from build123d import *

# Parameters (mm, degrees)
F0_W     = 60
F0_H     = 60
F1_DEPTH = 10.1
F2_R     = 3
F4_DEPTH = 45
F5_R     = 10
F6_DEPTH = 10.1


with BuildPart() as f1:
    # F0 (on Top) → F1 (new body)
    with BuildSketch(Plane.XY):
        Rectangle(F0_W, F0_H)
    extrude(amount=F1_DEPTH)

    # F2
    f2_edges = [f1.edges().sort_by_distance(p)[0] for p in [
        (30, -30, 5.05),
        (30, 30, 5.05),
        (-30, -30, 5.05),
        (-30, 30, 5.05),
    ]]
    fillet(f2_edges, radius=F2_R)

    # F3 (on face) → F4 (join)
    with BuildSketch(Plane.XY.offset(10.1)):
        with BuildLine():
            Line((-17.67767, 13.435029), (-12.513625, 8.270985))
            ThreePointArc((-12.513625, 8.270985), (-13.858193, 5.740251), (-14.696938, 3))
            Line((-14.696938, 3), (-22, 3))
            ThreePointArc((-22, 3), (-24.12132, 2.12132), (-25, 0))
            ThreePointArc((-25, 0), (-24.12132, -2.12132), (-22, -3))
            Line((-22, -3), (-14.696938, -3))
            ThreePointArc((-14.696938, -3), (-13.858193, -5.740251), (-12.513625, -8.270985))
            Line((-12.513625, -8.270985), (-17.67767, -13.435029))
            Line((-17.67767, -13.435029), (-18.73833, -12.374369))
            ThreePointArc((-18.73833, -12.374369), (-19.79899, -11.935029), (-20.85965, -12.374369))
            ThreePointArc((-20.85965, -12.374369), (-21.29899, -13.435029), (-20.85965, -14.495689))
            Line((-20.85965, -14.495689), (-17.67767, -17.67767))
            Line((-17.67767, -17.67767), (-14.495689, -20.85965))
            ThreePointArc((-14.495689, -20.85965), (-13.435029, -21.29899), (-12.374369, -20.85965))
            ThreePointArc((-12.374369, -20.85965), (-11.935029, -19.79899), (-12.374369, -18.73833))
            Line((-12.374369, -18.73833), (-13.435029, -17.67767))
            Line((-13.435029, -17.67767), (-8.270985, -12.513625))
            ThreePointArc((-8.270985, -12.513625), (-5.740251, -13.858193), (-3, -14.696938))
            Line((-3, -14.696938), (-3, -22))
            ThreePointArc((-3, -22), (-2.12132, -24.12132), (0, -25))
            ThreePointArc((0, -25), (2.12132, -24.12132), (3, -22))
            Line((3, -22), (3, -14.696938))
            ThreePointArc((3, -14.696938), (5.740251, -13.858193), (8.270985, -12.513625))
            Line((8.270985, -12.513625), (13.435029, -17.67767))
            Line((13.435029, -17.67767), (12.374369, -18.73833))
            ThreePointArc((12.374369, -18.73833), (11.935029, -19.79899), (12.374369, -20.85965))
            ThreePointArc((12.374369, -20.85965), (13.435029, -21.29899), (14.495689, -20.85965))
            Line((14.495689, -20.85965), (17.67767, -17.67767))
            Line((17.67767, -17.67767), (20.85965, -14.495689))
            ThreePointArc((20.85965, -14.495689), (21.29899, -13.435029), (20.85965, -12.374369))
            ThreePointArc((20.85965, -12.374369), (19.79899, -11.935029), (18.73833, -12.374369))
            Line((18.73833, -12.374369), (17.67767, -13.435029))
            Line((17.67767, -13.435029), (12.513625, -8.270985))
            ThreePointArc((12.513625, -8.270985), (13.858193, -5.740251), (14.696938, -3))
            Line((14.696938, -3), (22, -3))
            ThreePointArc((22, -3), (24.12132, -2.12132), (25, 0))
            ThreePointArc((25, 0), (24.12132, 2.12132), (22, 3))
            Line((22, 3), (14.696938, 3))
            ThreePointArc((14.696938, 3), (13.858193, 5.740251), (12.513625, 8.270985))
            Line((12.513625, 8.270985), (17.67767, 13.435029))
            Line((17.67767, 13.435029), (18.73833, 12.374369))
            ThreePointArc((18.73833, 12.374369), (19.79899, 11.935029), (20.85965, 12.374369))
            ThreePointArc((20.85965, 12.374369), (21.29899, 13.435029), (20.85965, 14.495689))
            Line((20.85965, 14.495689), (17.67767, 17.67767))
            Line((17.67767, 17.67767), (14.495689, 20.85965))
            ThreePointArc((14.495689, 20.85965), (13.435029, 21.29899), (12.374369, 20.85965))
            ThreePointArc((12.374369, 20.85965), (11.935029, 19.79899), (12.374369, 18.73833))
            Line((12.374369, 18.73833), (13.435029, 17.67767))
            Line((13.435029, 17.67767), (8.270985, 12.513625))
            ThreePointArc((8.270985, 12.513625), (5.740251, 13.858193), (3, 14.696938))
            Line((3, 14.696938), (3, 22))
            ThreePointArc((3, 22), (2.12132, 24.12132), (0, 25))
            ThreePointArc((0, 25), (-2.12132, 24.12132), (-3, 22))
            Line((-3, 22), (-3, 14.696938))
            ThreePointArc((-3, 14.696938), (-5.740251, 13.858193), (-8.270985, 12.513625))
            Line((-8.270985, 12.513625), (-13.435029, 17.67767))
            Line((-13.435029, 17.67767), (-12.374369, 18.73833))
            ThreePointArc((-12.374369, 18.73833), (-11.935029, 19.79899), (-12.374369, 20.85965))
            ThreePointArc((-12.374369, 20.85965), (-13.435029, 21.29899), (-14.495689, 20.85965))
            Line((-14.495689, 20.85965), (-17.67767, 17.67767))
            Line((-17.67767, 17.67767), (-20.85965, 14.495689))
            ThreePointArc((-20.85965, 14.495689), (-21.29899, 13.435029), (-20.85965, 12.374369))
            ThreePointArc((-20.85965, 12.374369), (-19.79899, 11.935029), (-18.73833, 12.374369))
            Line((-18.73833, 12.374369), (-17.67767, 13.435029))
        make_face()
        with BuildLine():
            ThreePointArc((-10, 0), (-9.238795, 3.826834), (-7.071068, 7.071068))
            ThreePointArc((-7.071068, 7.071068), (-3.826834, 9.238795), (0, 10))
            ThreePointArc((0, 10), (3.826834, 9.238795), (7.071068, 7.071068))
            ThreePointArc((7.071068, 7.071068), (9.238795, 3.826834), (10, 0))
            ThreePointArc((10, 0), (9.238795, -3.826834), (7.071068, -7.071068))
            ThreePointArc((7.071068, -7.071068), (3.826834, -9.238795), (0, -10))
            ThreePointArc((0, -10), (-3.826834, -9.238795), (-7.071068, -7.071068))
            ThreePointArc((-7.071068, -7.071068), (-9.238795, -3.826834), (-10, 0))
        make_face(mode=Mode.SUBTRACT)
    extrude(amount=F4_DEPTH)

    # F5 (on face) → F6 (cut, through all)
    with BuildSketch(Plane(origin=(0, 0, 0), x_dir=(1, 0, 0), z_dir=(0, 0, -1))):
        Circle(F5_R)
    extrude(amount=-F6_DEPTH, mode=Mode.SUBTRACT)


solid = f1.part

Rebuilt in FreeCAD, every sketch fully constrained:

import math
import FreeCAD as App
import Part
import Sketcher


def edges_at(feature, points):
    """Names of the edges that pass closest to the given points."""
    edges = feature.Shape.Edges
    near = lambda p: min(range(len(edges)), key=lambda i: edges[i].distToShape(Part.Vertex(*p))[0])
    return sorted({f"Edge{near(p) + 1}" for p in points})

doc = App.newDocument("Part")
body = doc.addObject("PartDesign::Body", "Body")

# Sketch on XY plane
sketch1 = body.newObject("Sketcher::SketchObject", "Sketch")
sketch1.AttachmentSupport = (doc.getObject("XY_Plane"), [""])
sketch1.MapMode = "FlatFace"
sketch1.addGeometry(Part.LineSegment(App.Vector(-30, 30, 0), App.Vector(-30, -30, 0)), False)
sketch1.addGeometry(Part.LineSegment(App.Vector(-30, -30, 0), App.Vector(30, -30, 0)), False)
sketch1.addGeometry(Part.LineSegment(App.Vector(30, -30, 0), App.Vector(30, 30, 0)), False)
sketch1.addGeometry(Part.LineSegment(App.Vector(30, 30, 0), App.Vector(-30, 30, 0)), False)
sketch1.addConstraint(Sketcher.Constraint("Coincident", 0, 2, 1, 1))
sketch1.addConstraint(Sketcher.Constraint("Coincident", 1, 2, 2, 1))
sketch1.addConstraint(Sketcher.Constraint("Coincident", 2, 2, 3, 1))
sketch1.addConstraint(Sketcher.Constraint("Coincident", 3, 2, 0, 1))
sketch1.addConstraint(Sketcher.Constraint("Vertical", 0))
sketch1.addConstraint(Sketcher.Constraint("Horizontal", 1))
sketch1.addConstraint(Sketcher.Constraint("Vertical", 2))
sketch1.addConstraint(Sketcher.Constraint("Horizontal", 3))
sketch1.addConstraint(Sketcher.Constraint("Symmetric", 0, 2, 2, 2, -1, 1))
sketch1.addConstraint(Sketcher.Constraint("Equal", 3, 0))
sketch1.addConstraint(Sketcher.Constraint("DistanceX", 1, 1, 1, 2, 60.0))
pad1 = body.newObject("PartDesign::Pad", "Pad")
pad1.Profile = sketch1
pad1.Length = 10.1
doc.recompute()

fillet = body.newObject("PartDesign::Fillet", "Fillet")
fillet.Base = (pad1, edges_at(pad1, [
    (30, -30, 5.05),
    (30, 30, 5.05),
    (-30, -30, 5.05),
    (-30, 30, 5.05),
]))
fillet.Radius = 3

# Sketch on XY plane
sketch2 = body.newObject("Sketcher::SketchObject", "Sketch001")
sketch2.AttachmentSupport = (doc.getObject("XY_Plane"), [""])
sketch2.MapMode = "FlatFace"
sketch2.AttachmentOffset = App.Placement(App.Vector(0, 0, 10.1), App.Rotation())
sketch2.addGeometry(Part.LineSegment(App.Vector(-17.7, 13.4, 0), App.Vector(-12.5, 8.3, 0)), False)
sketch2.addGeometry(Part.ArcOfCircle(Part.Circle(App.Vector(0, 0, 0), App.Vector(0, 0, 1), 15), math.radians(147), math.radians(168)), False)
sketch2.addGeometry(Part.LineSegment(App.Vector(-14.7, 3, 0), App.Vector(-22, 3, 0)), False)
sketch2.addGeometry(Part.ArcOfCircle(Part.Circle(App.Vector(-22, 0, 0), App.Vector(0, 0, 1), 3), math.radians(90), math.radians(180)), False)
sketch2.addGeometry(Part.ArcOfCircle(Part.Circle(App.Vector(-22, 0, 0), App.Vector(0, 0, 1), 3), math.radians(-180), math.radians(-90)), False)
sketch2.addGeometry(Part.LineSegment(App.Vector(-22, -3, 0), App.Vector(-14.7, -3, 0)), False)
sketch2.addGeometry(Part.ArcOfCircle(Part.Circle(App.Vector(0, 0, 0), App.Vector(0, 0, 1), 15), math.radians(-168), math.radians(-147)), False)
sketch2.addGeometry(Part.LineSegment(App.Vector(-12.5, -8.3, 0), App.Vector(-17.7, -13.4, 0)), False)
sketch2.addGeometry(Part.LineSegment(App.Vector(-17.7, -13.4, 0), App.Vector(-18.7, -12.4, 0)), False)
sketch2.addGeometry(Part.ArcOfCircle(Part.Circle(App.Vector(-19.8, -13.4, 0), App.Vector(0, 0, 1), 1.5), math.radians(45), math.radians(135)), False)
sketch2.addGeometry(Part.ArcOfCircle(Part.Circle(App.Vector(-19.8, -13.4, 0), App.Vector(0, 0, 1), 1.5), math.radians(135), math.radians(225)), False)
sketch2.addGeometry(Part.LineSegment(App.Vector(-20.9, -14.5, 0), App.Vector(-17.7, -17.7, 0)), False)
sketch2.addGeometry(Part.LineSegment(App.Vector(-17.7, -17.7, 0), App.Vector(-14.5, -20.9, 0)), False)
sketch2.addGeometry(Part.ArcOfCircle(Part.Circle(App.Vector(-13.4, -19.8, 0), App.Vector(0, 0, 1), 1.5), math.radians(-135), math.radians(-45)), False)
sketch2.addGeometry(Part.ArcOfCircle(Part.Circle(App.Vector(-13.4, -19.8, 0), App.Vector(0, 0, 1), 1.5), math.radians(-45), math.radians(45)), False)
sketch2.addGeometry(Part.LineSegment(App.Vector(-12.4, -18.7, 0), App.Vector(-13.4, -17.7, 0)), False)
sketch2.addGeometry(Part.LineSegment(App.Vector(-13.4, -17.7, 0), App.Vector(-8.3, -12.5, 0)), False)
sketch2.addGeometry(Part.ArcOfCircle(Part.Circle(App.Vector(0, 0, 0), App.Vector(0, 0, 1), 15), math.radians(-123), math.radians(-102)), False)
sketch2.addGeometry(Part.LineSegment(App.Vector(-3, -14.7, 0), App.Vector(-3, -22, 0)), False)
sketch2.addGeometry(Part.ArcOfCircle(Part.Circle(App.Vector(0, -22, 0), App.Vector(0, 0, 1), 3), math.radians(-180), math.radians(-90)), False)
sketch2.addGeometry(Part.ArcOfCircle(Part.Circle(App.Vector(0, -22, 0), App.Vector(0, 0, 1), 3), math.radians(-90), math.radians(0)), False)
sketch2.addGeometry(Part.LineSegment(App.Vector(3, -22, 0), App.Vector(3, -14.7, 0)), False)
sketch2.addGeometry(Part.ArcOfCircle(Part.Circle(App.Vector(0, 0, 0), App.Vector(0, 0, 1), 15), math.radians(-78), math.radians(-57)), False)
sketch2.addGeometry(Part.LineSegment(App.Vector(8.3, -12.5, 0), App.Vector(13.4, -17.7, 0)), False)
sketch2.addGeometry(Part.LineSegment(App.Vector(13.4, -17.7, 0), App.Vector(12.4, -18.7, 0)), False)
sketch2.addGeometry(Part.ArcOfCircle(Part.Circle(App.Vector(13.4, -19.8, 0), App.Vector(0, 0, 1), 1.5), math.radians(135), math.radians(225)), False)
sketch2.addGeometry(Part.ArcOfCircle(Part.Circle(App.Vector(13.4, -19.8, 0), App.Vector(0, 0, 1), 1.5), math.radians(-135), math.radians(-45)), False)
sketch2.addGeometry(Part.LineSegment(App.Vector(14.5, -20.9, 0), App.Vector(17.7, -17.7, 0)), False)
sketch2.addGeometry(Part.LineSegment(App.Vector(17.7, -17.7, 0), App.Vector(20.9, -14.5, 0)), False)
sketch2.addGeometry(Part.ArcOfCircle(Part.Circle(App.Vector(19.8, -13.4, 0), App.Vector(0, 0, 1), 1.5), math.radians(-45), math.radians(45)), False)
sketch2.addGeometry(Part.ArcOfCircle(Part.Circle(App.Vector(19.8, -13.4, 0), App.Vector(0, 0, 1), 1.5), math.radians(45), math.radians(135)), False)
sketch2.addGeometry(Part.LineSegment(App.Vector(18.7, -12.4, 0), App.Vector(17.7, -13.4, 0)), False)
sketch2.addGeometry(Part.LineSegment(App.Vector(17.7, -13.4, 0), App.Vector(12.5, -8.3, 0)), False)
sketch2.addGeometry(Part.ArcOfCircle(Part.Circle(App.Vector(0, 0, 0), App.Vector(0, 0, 1), 15), math.radians(-33), math.radians(-12)), False)
sketch2.addGeometry(Part.LineSegment(App.Vector(14.7, -3, 0), App.Vector(22, -3, 0)), False)
sketch2.addGeometry(Part.ArcOfCircle(Part.Circle(App.Vector(22, 0, 0), App.Vector(0, 0, 1), 3), math.radians(-90), math.radians(0)), False)
sketch2.addGeometry(Part.ArcOfCircle(Part.Circle(App.Vector(22, 0, 0), App.Vector(0, 0, 1), 3), math.radians(0), math.radians(90)), False)
sketch2.addGeometry(Part.LineSegment(App.Vector(22, 3, 0), App.Vector(14.7, 3, 0)), False)
sketch2.addGeometry(Part.ArcOfCircle(Part.Circle(App.Vector(0, 0, 0), App.Vector(0, 0, 1), 15), math.radians(12), math.radians(33)), False)
sketch2.addGeometry(Part.LineSegment(App.Vector(12.5, 8.3, 0), App.Vector(17.7, 13.4, 0)), False)
sketch2.addGeometry(Part.LineSegment(App.Vector(17.7, 13.4, 0), App.Vector(18.7, 12.4, 0)), False)
sketch2.addGeometry(Part.ArcOfCircle(Part.Circle(App.Vector(19.8, 13.4, 0), App.Vector(0, 0, 1), 1.5), math.radians(-135), math.radians(-45)), False)
sketch2.addGeometry(Part.ArcOfCircle(Part.Circle(App.Vector(19.8, 13.4, 0), App.Vector(0, 0, 1), 1.5), math.radians(-45), math.radians(45)), False)
sketch2.addGeometry(Part.LineSegment(App.Vector(20.9, 14.5, 0), App.Vector(17.7, 17.7, 0)), False)
sketch2.addGeometry(Part.LineSegment(App.Vector(17.7, 17.7, 0), App.Vector(14.5, 20.9, 0)), False)
sketch2.addGeometry(Part.ArcOfCircle(Part.Circle(App.Vector(13.4, 19.8, 0), App.Vector(0, 0, 1), 1.5), math.radians(45), math.radians(135)), False)
sketch2.addGeometry(Part.ArcOfCircle(Part.Circle(App.Vector(13.4, 19.8, 0), App.Vector(0, 0, 1), 1.5), math.radians(135), math.radians(225)), False)
sketch2.addGeometry(Part.LineSegment(App.Vector(12.4, 18.7, 0), App.Vector(13.4, 17.7, 0)), False)
sketch2.addGeometry(Part.LineSegment(App.Vector(13.4, 17.7, 0), App.Vector(8.3, 12.5, 0)), False)
sketch2.addGeometry(Part.ArcOfCircle(Part.Circle(App.Vector(0, 0, 0), App.Vector(0, 0, 1), 15), math.radians(57), math.radians(78)), False)
sketch2.addGeometry(Part.LineSegment(App.Vector(3, 14.7, 0), App.Vector(3, 22, 0)), False)
sketch2.addGeometry(Part.ArcOfCircle(Part.Circle(App.Vector(0, 22, 0), App.Vector(0, 0, 1), 3), math.radians(0), math.radians(90)), False)
sketch2.addGeometry(Part.ArcOfCircle(Part.Circle(App.Vector(0, 22, 0), App.Vector(0, 0, 1), 3), math.radians(90), math.radians(180)), False)
sketch2.addGeometry(Part.LineSegment(App.Vector(-3, 22, 0), App.Vector(-3, 14.7, 0)), False)
sketch2.addGeometry(Part.ArcOfCircle(Part.Circle(App.Vector(0, 0, 0), App.Vector(0, 0, 1), 15), math.radians(102), math.radians(123)), False)
sketch2.addGeometry(Part.LineSegment(App.Vector(-8.3, 12.5, 0), App.Vector(-13.4, 17.7, 0)), False)
sketch2.addGeometry(Part.LineSegment(App.Vector(-13.4, 17.7, 0), App.Vector(-12.4, 18.7, 0)), False)
sketch2.addGeometry(Part.ArcOfCircle(Part.Circle(App.Vector(-13.4, 19.8, 0), App.Vector(0, 0, 1), 1.5), math.radians(-45), math.radians(45)), False)
sketch2.addGeometry(Part.ArcOfCircle(Part.Circle(App.Vector(-13.4, 19.8, 0), App.Vector(0, 0, 1), 1.5), math.radians(45), math.radians(135)), False)
sketch2.addGeometry(Part.LineSegment(App.Vector(-14.5, 20.9, 0), App.Vector(-17.7, 17.7, 0)), False)
sketch2.addGeometry(Part.LineSegment(App.Vector(-17.7, 17.7, 0), App.Vector(-20.9, 14.5, 0)), False)
sketch2.addGeometry(Part.ArcOfCircle(Part.Circle(App.Vector(-19.8, 13.4, 0), App.Vector(0, 0, 1), 1.5), math.radians(135), math.radians(225)), False)
sketch2.addGeometry(Part.ArcOfCircle(Part.Circle(App.Vector(-19.8, 13.4, 0), App.Vector(0, 0, 1), 1.5), math.radians(-135), math.radians(-45)), False)
sketch2.addGeometry(Part.LineSegment(App.Vector(-18.7, 12.4, 0), App.Vector(-17.7, 13.4, 0)), False)
sketch2.addGeometry(Part.ArcOfCircle(Part.Circle(App.Vector(0, 0, 0), App.Vector(0, 0, 1), 10), math.radians(-180), math.radians(-135)), False)
sketch2.addGeometry(Part.ArcOfCircle(Part.Circle(App.Vector(0, 0, 0), App.Vector(0, 0, 1), 10), math.radians(135), math.radians(180)), False)
sketch2.addGeometry(Part.ArcOfCircle(Part.Circle(App.Vector(0, 0, 0), App.Vector(0, 0, 1), 10), math.radians(90), math.radians(135)), False)
sketch2.addGeometry(Part.ArcOfCircle(Part.Circle(App.Vector(0, 0, 0), App.Vector(0, 0, 1), 10), math.radians(45), math.radians(90)), False)
sketch2.addGeometry(Part.ArcOfCircle(Part.Circle(App.Vector(0, 0, 0), App.Vector(0, 0, 1), 10), math.radians(0), math.radians(45)), False)
sketch2.addGeometry(Part.ArcOfCircle(Part.Circle(App.Vector(0, 0, 0), App.Vector(0, 0, 1), 10), math.radians(-45), math.radians(0)), False)
sketch2.addGeometry(Part.ArcOfCircle(Part.Circle(App.Vector(0, 0, 0), App.Vector(0, 0, 1), 10), math.radians(-90), math.radians(-45)), False)
sketch2.addGeometry(Part.ArcOfCircle(Part.Circle(App.Vector(0, 0, 0), App.Vector(0, 0, 1), 10), math.radians(-135), math.radians(-90)), False)
sketch2.addConstraint(Sketcher.Constraint("Coincident", 0, 2, 1, 1))
sketch2.addConstraint(Sketcher.Constraint("Coincident", 1, 2, 2, 1))
sketch2.addConstraint(Sketcher.Constraint("Tangent", 2, 2, 3, 1))
sketch2.addConstraint(Sketcher.Constraint("Tangent", 3, 2, 4, 1))
sketch2.addConstraint(Sketcher.Constraint("Tangent", 4, 2, 5, 1))
sketch2.addConstraint(Sketcher.Constraint("Coincident", 5, 2, 6, 1))
sketch2.addConstraint(Sketcher.Constraint("Coincident", 6, 2, 7, 1))
sketch2.addConstraint(Sketcher.Constraint("Coincident", 7, 2, 8, 1))
sketch2.addConstraint(Sketcher.Constraint("Tangent", 8, 2, 9, 1))
sketch2.addConstraint(Sketcher.Constraint("Tangent", 9, 2, 10, 1))
sketch2.addConstraint(Sketcher.Constraint("Tangent", 10, 2, 11, 1))
sketch2.addConstraint(Sketcher.Constraint("Coincident", 11, 2, 12, 1))
sketch2.addConstraint(Sketcher.Constraint("Tangent", 12, 2, 13, 1))
sketch2.addConstraint(Sketcher.Constraint("Tangent", 13, 2, 14, 1))
sketch2.addConstraint(Sketcher.Constraint("Tangent", 14, 2, 15, 1))
sketch2.addConstraint(Sketcher.Constraint("Coincident", 15, 2, 16, 1))
sketch2.addConstraint(Sketcher.Constraint("Coincident", 16, 2, 17, 1))
sketch2.addConstraint(Sketcher.Constraint("Coincident", 17, 2, 18, 1))
sketch2.addConstraint(Sketcher.Constraint("Tangent", 18, 2, 19, 1))
sketch2.addConstraint(Sketcher.Constraint("Tangent", 19, 2, 20, 1))
sketch2.addConstraint(Sketcher.Constraint("Tangent", 20, 2, 21, 1))
sketch2.addConstraint(Sketcher.Constraint("Coincident", 21, 2, 22, 1))
sketch2.addConstraint(Sketcher.Constraint("Coincident", 22, 2, 23, 1))
sketch2.addConstraint(Sketcher.Constraint("Coincident", 23, 2, 24, 1))
sketch2.addConstraint(Sketcher.Constraint("Tangent", 24, 2, 25, 1))
sketch2.addConstraint(Sketcher.Constraint("Tangent", 25, 2, 26, 1))
sketch2.addConstraint(Sketcher.Constraint("Tangent", 26, 2, 27, 1))
sketch2.addConstraint(Sketcher.Constraint("Coincident", 27, 2, 28, 1))
sketch2.addConstraint(Sketcher.Constraint("Tangent", 28, 2, 29, 1))
sketch2.addConstraint(Sketcher.Constraint("Tangent", 29, 2, 30, 1))
sketch2.addConstraint(Sketcher.Constraint("Tangent", 30, 2, 31, 1))
sketch2.addConstraint(Sketcher.Constraint("Coincident", 31, 2, 32, 1))
sketch2.addConstraint(Sketcher.Constraint("Coincident", 32, 2, 33, 1))
sketch2.addConstraint(Sketcher.Constraint("Coincident", 33, 2, 34, 1))
sketch2.addConstraint(Sketcher.Constraint("Tangent", 34, 2, 35, 1))
sketch2.addConstraint(Sketcher.Constraint("Tangent", 35, 2, 36, 1))
sketch2.addConstraint(Sketcher.Constraint("Tangent", 36, 2, 37, 1))
sketch2.addConstraint(Sketcher.Constraint("Coincident", 37, 2, 38, 1))
sketch2.addConstraint(Sketcher.Constraint("Coincident", 38, 2, 39, 1))
sketch2.addConstraint(Sketcher.Constraint("Coincident", 39, 2, 40, 1))
sketch2.addConstraint(Sketcher.Constraint("Tangent", 40, 2, 41, 1))
sketch2.addConstraint(Sketcher.Constraint("Tangent", 41, 2, 42, 1))
sketch2.addConstraint(Sketcher.Constraint("Tangent", 42, 2, 43, 1))
sketch2.addConstraint(Sketcher.Constraint("Coincident", 43, 2, 44, 1))
sketch2.addConstraint(Sketcher.Constraint("Tangent", 44, 2, 45, 1))
sketch2.addConstraint(Sketcher.Constraint("Tangent", 45, 2, 46, 1))
sketch2.addConstraint(Sketcher.Constraint("Tangent", 46, 2, 47, 1))
sketch2.addConstraint(Sketcher.Constraint("Coincident", 47, 2, 48, 1))
sketch2.addConstraint(Sketcher.Constraint("Coincident", 48, 2, 49, 1))
sketch2.addConstraint(Sketcher.Constraint("Coincident", 49, 2, 50, 1))
sketch2.addConstraint(Sketcher.Constraint("Tangent", 50, 2, 51, 1))
sketch2.addConstraint(Sketcher.Constraint("Tangent", 51, 2, 52, 1))
sketch2.addConstraint(Sketcher.Constraint("Tangent", 52, 2, 53, 1))
sketch2.addConstraint(Sketcher.Constraint("Coincident", 53, 2, 54, 1))
sketch2.addConstraint(Sketcher.Constraint("Coincident", 54, 2, 55, 1))
sketch2.addConstraint(Sketcher.Constraint("Coincident", 55, 2, 56, 1))
sketch2.addConstraint(Sketcher.Constraint("Tangent", 56, 2, 57, 1))
sketch2.addConstraint(Sketcher.Constraint("Tangent", 57, 2, 58, 1))
sketch2.addConstraint(Sketcher.Constraint("Tangent", 58, 2, 59, 1))
sketch2.addConstraint(Sketcher.Constraint("Coincident", 59, 2, 60, 1))
sketch2.addConstraint(Sketcher.Constraint("Tangent", 60, 2, 61, 1))
sketch2.addConstraint(Sketcher.Constraint("Tangent", 61, 2, 62, 1))
sketch2.addConstraint(Sketcher.Constraint("Tangent", 62, 2, 63, 1))
sketch2.addConstraint(Sketcher.Constraint("Coincident", 63, 2, 0, 1))
sketch2.addConstraint(Sketcher.Constraint("Tangent", 64, 1, 65, 2))
sketch2.addConstraint(Sketcher.Constraint("Tangent", 65, 1, 66, 2))
sketch2.addConstraint(Sketcher.Constraint("Tangent", 66, 1, 67, 2))
sketch2.addConstraint(Sketcher.Constraint("Tangent", 67, 1, 68, 2))
sketch2.addConstraint(Sketcher.Constraint("Tangent", 68, 1, 69, 2))
sketch2.addConstraint(Sketcher.Constraint("Tangent", 69, 1, 70, 2))
sketch2.addConstraint(Sketcher.Constraint("Tangent", 70, 1, 71, 2))
sketch2.addConstraint(Sketcher.Constraint("Tangent", 71, 1, 64, 2))
sketch2.addConstraint(Sketcher.Constraint("Horizontal", 2))
sketch2.addConstraint(Sketcher.Constraint("Horizontal", 5))
sketch2.addConstraint(Sketcher.Constraint("Vertical", 18))
sketch2.addConstraint(Sketcher.Constraint("Vertical", 21))
sketch2.addConstraint(Sketcher.Constraint("Horizontal", 34))
sketch2.addConstraint(Sketcher.Constraint("Horizontal", 37))
sketch2.addConstraint(Sketcher.Constraint("Vertical", 50))
sketch2.addConstraint(Sketcher.Constraint("Vertical", 53))
sketch2.addConstraint(Sketcher.Constraint("Coincident", 1, 3, -1, 1))
sketch2.addConstraint(Sketcher.Constraint("Coincident", 6, 3, -1, 1))
sketch2.addConstraint(Sketcher.Constraint("Coincident", 17, 3, -1, 1))
sketch2.addConstraint(Sketcher.Constraint("Coincident", 22, 3, -1, 1))
sketch2.addConstraint(Sketcher.Constraint("Coincident", 33, 3, -1, 1))
sketch2.addConstraint(Sketcher.Constraint("Coincident", 38, 3, -1, 1))
sketch2.addConstraint(Sketcher.Constraint("Coincident", 49, 3, -1, 1))
sketch2.addConstraint(Sketcher.Constraint("Coincident", 54, 3, -1, 1))
sketch2.addConstraint(Sketcher.Constraint("Coincident", 64, 3, -1, 1))
sketch2.addConstraint(Sketcher.Constraint("Coincident", 66, 3, -1, 1))
sketch2.addConstraint(Sketcher.Constraint("Coincident", 68, 3, -1, 1))
sketch2.addConstraint(Sketcher.Constraint("Equal", 3, 4))
sketch2.addConstraint(Sketcher.Constraint("Equal", 1, 6))
sketch2.addConstraint(Sketcher.Constraint("Equal", 9, 10))
sketch2.addConstraint(Sketcher.Constraint("Equal", 10, 13))
sketch2.addConstraint(Sketcher.Constraint("Equal", 13, 14))
sketch2.addConstraint(Sketcher.Constraint("Equal", 6, 17))
sketch2.addConstraint(Sketcher.Constraint("Equal", 4, 19))
sketch2.addConstraint(Sketcher.Constraint("Equal", 19, 20))
sketch2.addConstraint(Sketcher.Constraint("Equal", 17, 22))
sketch2.addConstraint(Sketcher.Constraint("Equal", 14, 25))
sketch2.addConstraint(Sketcher.Constraint("Equal", 25, 26))
sketch2.addConstraint(Sketcher.Constraint("Equal", 26, 29))
sketch2.addConstraint(Sketcher.Constraint("Equal", 29, 30))
sketch2.addConstraint(Sketcher.Constraint("Equal", 22, 33))
sketch2.addConstraint(Sketcher.Constraint("Equal", 20, 35))
sketch2.addConstraint(Sketcher.Constraint("Equal", 35, 36))
sketch2.addConstraint(Sketcher.Constraint("Equal", 33, 38))
sketch2.addConstraint(Sketcher.Constraint("Equal", 30, 41))
sketch2.addConstraint(Sketcher.Constraint("Equal", 41, 42))
sketch2.addConstraint(Sketcher.Constraint("Equal", 42, 45))
sketch2.addConstraint(Sketcher.Constraint("Equal", 45, 46))
sketch2.addConstraint(Sketcher.Constraint("Equal", 38, 49))
sketch2.addConstraint(Sketcher.Constraint("Equal", 36, 51))
sketch2.addConstraint(Sketcher.Constraint("Equal", 51, 52))
sketch2.addConstraint(Sketcher.Constraint("Equal", 49, 54))
sketch2.addConstraint(Sketcher.Constraint("Equal", 46, 57))
sketch2.addConstraint(Sketcher.Constraint("Equal", 57, 58))
sketch2.addConstraint(Sketcher.Constraint("Equal", 58, 61))
sketch2.addConstraint(Sketcher.Constraint("Equal", 61, 62))
sketch2.addConstraint(Sketcher.Constraint("Equal", 68, 69))
sketch2.addConstraint(Sketcher.Constraint("Symmetric", 3, 3, 35, 3, -1, 1))
sketch2.addConstraint(Sketcher.Constraint("Symmetric", 9, 3, 41, 3, -1, 1))
sketch2.addConstraint(Sketcher.Constraint("Symmetric", 13, 3, 45, 3, -1, 1))
sketch2.addConstraint(Sketcher.Constraint("Symmetric", 19, 3, 51, 3, -1, 1))
sketch2.addConstraint(Sketcher.Constraint("Symmetric", 25, 3, 57, 3, -1, 1))
sketch2.addConstraint(Sketcher.Constraint("Symmetric", 29, 3, 61, 3, -1, 1))
sketch2.addConstraint(Sketcher.Constraint("Symmetric", 7, 2, 39, 2, -1, 1))
sketch2.addConstraint(Sketcher.Constraint("Symmetric", 11, 2, 43, 2, -1, 1))
sketch2.addConstraint(Sketcher.Constraint("Symmetric", 15, 2, 47, 2, -1, 1))
sketch2.addConstraint(Sketcher.Constraint("Symmetric", 23, 2, 55, 2, -1, 1))
sketch2.addConstraint(Sketcher.Constraint("Symmetric", 27, 2, 59, 2, -1, 1))
sketch2.addConstraint(Sketcher.Constraint("Symmetric", 31, 2, 63, 2, -1, 1))
sketch2.addConstraint(Sketcher.Constraint("Symmetric", 13, 3, 25, 3, -2))
sketch2.addConstraint(Sketcher.Constraint("Symmetric", 9, 3, 29, 3, -2))
sketch2.addConstraint(Sketcher.Constraint("Symmetric", 15, 2, 23, 2, -2))
sketch2.addConstraint(Sketcher.Constraint("Symmetric", 11, 2, 27, 2, -2))
sketch2.addConstraint(Sketcher.Constraint("Symmetric", 7, 2, 31, 2, -2))
sketch2.addConstraint(Sketcher.Constraint("PointOnObject", 3, 3, -1))
sketch2.addConstraint(Sketcher.Constraint("PointOnObject", 19, 3, -2))
sketch2.addConstraint(Sketcher.Constraint("PointOnObject", 3, 2, -1))
sketch2.addConstraint(Sketcher.Constraint("PointOnObject", 19, 2, -2))
sketch2.addConstraint(Sketcher.Constraint("PointOnObject", 35, 2, -1))
sketch2.addConstraint(Sketcher.Constraint("PointOnObject", 51, 2, -2))
sketch2.addConstraint(Sketcher.Constraint("PointOnObject", 64, 1, -1))
sketch2.addConstraint(Sketcher.Constraint("PointOnObject", 66, 1, -2))
sketch2.addConstraint(Sketcher.Constraint("PointOnObject", 68, 1, -1))
sketch2.addConstraint(Sketcher.Constraint("PointOnObject", 70, 1, -2))
sketch2.addConstraint(Sketcher.Constraint("Perpendicular", 0, 7))
sketch2.addConstraint(Sketcher.Constraint("Perpendicular", 7, 8))
sketch2.addConstraint(Sketcher.Constraint("Parallel", 8, 11))
sketch2.addConstraint(Sketcher.Constraint("Parallel", 11, 12))
sketch2.addConstraint(Sketcher.Constraint("Parallel", 12, 15))
sketch2.addConstraint(Sketcher.Constraint("Perpendicular", 15, 16))
sketch2.addConstraint(Sketcher.Constraint("Perpendicular", 16, 23))
sketch2.addConstraint(Sketcher.Constraint("Perpendicular", 23, 24))
sketch2.addConstraint(Sketcher.Constraint("Perpendicular", 31, 32))
sketch2.addConstraint(Sketcher.Constraint("Perpendicular", 32, 39))
sketch2.addConstraint(Sketcher.Constraint("Perpendicular", 47, 48))
sketch2.addConstraint(Sketcher.Constraint("Perpendicular", 48, 55))
sketch2.addConstraint(Sketcher.Constraint("Horizontal", 30, 3, 7, 2))
sketch2.addConstraint(Sketcher.Constraint("Horizontal", 8, 2, 9, 2))
sketch2.addConstraint(Sketcher.Constraint("Horizontal", 12, 2, 13, 2))
sketch2.addConstraint(Sketcher.Constraint("Horizontal", 11, 2, 15, 2))
sketch2.addConstraint(Sketcher.Constraint("Horizontal", 13, 2, 25, 2))
sketch2.addConstraint(Sketcher.Constraint("Horizontal", 9, 2, 29, 2))
sketch2.addConstraint(Sketcher.Constraint("Horizontal", 40, 2, 41, 2))
sketch2.addConstraint(Sketcher.Constraint("Horizontal", 44, 2, 45, 2))
sketch2.addConstraint(Sketcher.Constraint("Horizontal", 45, 2, 57, 2))
sketch2.addConstraint(Sketcher.Constraint("Horizontal", 41, 2, 61, 2))
sketch2.addConstraint(Sketcher.Constraint("Horizontal", 65, 1, 67, 1))
sketch2.addConstraint(Sketcher.Constraint("Horizontal", 69, 1, 71, 1))
sketch2.addConstraint(Sketcher.Constraint("Vertical", 7, 2, 11, 2))
sketch2.addConstraint(Sketcher.Constraint("Vertical", 58, 3, 15, 2))
sketch2.addConstraint(Sketcher.Constraint("Vertical", 67, 1, 69, 1))
sketch2.addConstraint(Sketcher.Constraint("Equal", 37, 18))
sketch2.addConstraint(Sketcher.Constraint("Equal", 7, 16))
sketch2.addConstraint(Sketcher.Constraint("Radius", 1, 15.0))
sketch2.addConstraint(Sketcher.Constraint("Radius", 3, 3.000001))
sketch2.addConstraint(Sketcher.Constraint("Radius", 9, 1.499999))
sketch2.addConstraint(Sketcher.Constraint("DistanceX", 3, 3, -1, 1, 21.999999))
sketch2.addConstraint(Sketcher.Constraint("DistanceX", 64, 1, -1, 1, 10.0))
sketch2.addConstraint(Sketcher.Constraint("Distance", 0, 7.303062))
sketch2.addConstraint(Sketcher.Constraint("DistanceX", 65, 1, -1, 1, 7.071068))
pad2 = body.newObject("PartDesign::Pad", "Pad001")
pad2.Profile = sketch2
pad2.Length = 45

# Sketch on XY plane
sketch3 = body.newObject("Sketcher::SketchObject", "Sketch002")
sketch3.AttachmentSupport = (doc.getObject("XY_Plane"), [""])
sketch3.MapMode = "FlatFace"
sketch3.addGeometry(Part.Circle(App.Vector(0, 0, 0), App.Vector(0, 0, 1), 10), False)
sketch3.addConstraint(Sketcher.Constraint("Coincident", 0, 3, -1, 1))
sketch3.addConstraint(Sketcher.Constraint("Diameter", 0, 20.0))
pocket1 = body.newObject("PartDesign::Pocket", "Pocket")
pocket1.Profile = sketch3
pocket1.Type = "ThroughAll"
pocket1.Reversed = True

doc.recompute()
